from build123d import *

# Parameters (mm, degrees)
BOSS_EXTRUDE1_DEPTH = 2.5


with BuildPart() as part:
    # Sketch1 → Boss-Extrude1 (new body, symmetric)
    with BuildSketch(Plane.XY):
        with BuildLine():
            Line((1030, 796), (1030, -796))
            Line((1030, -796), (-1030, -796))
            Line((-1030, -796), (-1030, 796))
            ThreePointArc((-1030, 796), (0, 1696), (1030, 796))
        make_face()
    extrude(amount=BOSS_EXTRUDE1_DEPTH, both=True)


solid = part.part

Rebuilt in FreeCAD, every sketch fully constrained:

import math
import FreeCAD as App
import Part
import Sketcher
from FreeCAD import Vector

doc = App.newDocument("Part")
params = doc.addObject("Spreadsheet::Sheet", "Params")
for row, (alias, value) in enumerate([
    ("sketch1_width", "2060 mm"),
    ("sketch1_height", "1592 mm"),
    ("pad1_length", "5 mm"),
], start=1):
    params.set(f"A{row}", alias)
    params.set(f"B{row}", "=" + value)
    params.setAlias(f"B{row}", alias)

body = doc.addObject("PartDesign::Body", "Body")

# Sketch on XY plane
sketch1 = body.newObject("Sketcher::SketchObject", "Sketch")
sketch1.AttachmentSupport = (doc.getObject("XY_Plane"), [""])
sketch1.MapMode = "FlatFace"
sketch1.addGeometry(Part.LineSegment(Vector(1030, -796, 0), Vector(1030, 796, 0)), False)
sketch1.addGeometry(Part.ArcOfCircle(Part.Circle(Vector(0, 656.611111, 0), Vector(0, 0, 1), 1039.388889), math.radians(7.706961), math.radians(172.293039)), False)
sketch1.addGeometry(Part.LineSegment(Vector(-1030, 796, 0), Vector(-1030, -796, 0)), False)
sketch1.addGeometry(Part.LineSegment(Vector(-1030, -796, 0), Vector(1030, -796, 0)), False)
sketch1.addConstraint(Sketcher.Constraint("Coincident", 0, 2, 1, 1))
sketch1.addConstraint(Sketcher.Constraint("Coincident", 1, 2, 2, 1))
sketch1.addConstraint(Sketcher.Constraint("Coincident", 2, 2, 3, 1))
sketch1.addConstraint(Sketcher.Constraint("Coincident", 3, 2, 0, 1))
sketch1.addConstraint(Sketcher.Constraint("Vertical", 0))
sketch1.addConstraint(Sketcher.Constraint("Vertical", 2))
sketch1.addConstraint(Sketcher.Constraint("Horizontal", 3))
sketch1.addConstraint(Sketcher.Constraint("Symmetric", 0, 2, 2, 2, -1, 1))
sketch1.addConstraint(Sketcher.Constraint("PointOnObject", 1, 3, -2))
sketch1.addConstraint(Sketcher.Constraint("DistanceX", 3, 1, 3, 2, 2060.0))
sketch1.addConstraint(Sketcher.Constraint("DistanceY", 0, 1, 0, 2, 1592.0))
sketch1.addConstraint(Sketcher.Constraint("Radius", 1, 1039.388889))
sketch1.setExpression("Constraints[9]", "Params.sketch1_width")
sketch1.setExpression("Constraints[10]", "Params.sketch1_height")
pad1 = body.newObject("PartDesign::Pad", "Pad")
pad1.Profile = sketch1
pad1.setExpression("Length", "Params.pad1_length")
pad1.Midplane = True

doc.recompute()
